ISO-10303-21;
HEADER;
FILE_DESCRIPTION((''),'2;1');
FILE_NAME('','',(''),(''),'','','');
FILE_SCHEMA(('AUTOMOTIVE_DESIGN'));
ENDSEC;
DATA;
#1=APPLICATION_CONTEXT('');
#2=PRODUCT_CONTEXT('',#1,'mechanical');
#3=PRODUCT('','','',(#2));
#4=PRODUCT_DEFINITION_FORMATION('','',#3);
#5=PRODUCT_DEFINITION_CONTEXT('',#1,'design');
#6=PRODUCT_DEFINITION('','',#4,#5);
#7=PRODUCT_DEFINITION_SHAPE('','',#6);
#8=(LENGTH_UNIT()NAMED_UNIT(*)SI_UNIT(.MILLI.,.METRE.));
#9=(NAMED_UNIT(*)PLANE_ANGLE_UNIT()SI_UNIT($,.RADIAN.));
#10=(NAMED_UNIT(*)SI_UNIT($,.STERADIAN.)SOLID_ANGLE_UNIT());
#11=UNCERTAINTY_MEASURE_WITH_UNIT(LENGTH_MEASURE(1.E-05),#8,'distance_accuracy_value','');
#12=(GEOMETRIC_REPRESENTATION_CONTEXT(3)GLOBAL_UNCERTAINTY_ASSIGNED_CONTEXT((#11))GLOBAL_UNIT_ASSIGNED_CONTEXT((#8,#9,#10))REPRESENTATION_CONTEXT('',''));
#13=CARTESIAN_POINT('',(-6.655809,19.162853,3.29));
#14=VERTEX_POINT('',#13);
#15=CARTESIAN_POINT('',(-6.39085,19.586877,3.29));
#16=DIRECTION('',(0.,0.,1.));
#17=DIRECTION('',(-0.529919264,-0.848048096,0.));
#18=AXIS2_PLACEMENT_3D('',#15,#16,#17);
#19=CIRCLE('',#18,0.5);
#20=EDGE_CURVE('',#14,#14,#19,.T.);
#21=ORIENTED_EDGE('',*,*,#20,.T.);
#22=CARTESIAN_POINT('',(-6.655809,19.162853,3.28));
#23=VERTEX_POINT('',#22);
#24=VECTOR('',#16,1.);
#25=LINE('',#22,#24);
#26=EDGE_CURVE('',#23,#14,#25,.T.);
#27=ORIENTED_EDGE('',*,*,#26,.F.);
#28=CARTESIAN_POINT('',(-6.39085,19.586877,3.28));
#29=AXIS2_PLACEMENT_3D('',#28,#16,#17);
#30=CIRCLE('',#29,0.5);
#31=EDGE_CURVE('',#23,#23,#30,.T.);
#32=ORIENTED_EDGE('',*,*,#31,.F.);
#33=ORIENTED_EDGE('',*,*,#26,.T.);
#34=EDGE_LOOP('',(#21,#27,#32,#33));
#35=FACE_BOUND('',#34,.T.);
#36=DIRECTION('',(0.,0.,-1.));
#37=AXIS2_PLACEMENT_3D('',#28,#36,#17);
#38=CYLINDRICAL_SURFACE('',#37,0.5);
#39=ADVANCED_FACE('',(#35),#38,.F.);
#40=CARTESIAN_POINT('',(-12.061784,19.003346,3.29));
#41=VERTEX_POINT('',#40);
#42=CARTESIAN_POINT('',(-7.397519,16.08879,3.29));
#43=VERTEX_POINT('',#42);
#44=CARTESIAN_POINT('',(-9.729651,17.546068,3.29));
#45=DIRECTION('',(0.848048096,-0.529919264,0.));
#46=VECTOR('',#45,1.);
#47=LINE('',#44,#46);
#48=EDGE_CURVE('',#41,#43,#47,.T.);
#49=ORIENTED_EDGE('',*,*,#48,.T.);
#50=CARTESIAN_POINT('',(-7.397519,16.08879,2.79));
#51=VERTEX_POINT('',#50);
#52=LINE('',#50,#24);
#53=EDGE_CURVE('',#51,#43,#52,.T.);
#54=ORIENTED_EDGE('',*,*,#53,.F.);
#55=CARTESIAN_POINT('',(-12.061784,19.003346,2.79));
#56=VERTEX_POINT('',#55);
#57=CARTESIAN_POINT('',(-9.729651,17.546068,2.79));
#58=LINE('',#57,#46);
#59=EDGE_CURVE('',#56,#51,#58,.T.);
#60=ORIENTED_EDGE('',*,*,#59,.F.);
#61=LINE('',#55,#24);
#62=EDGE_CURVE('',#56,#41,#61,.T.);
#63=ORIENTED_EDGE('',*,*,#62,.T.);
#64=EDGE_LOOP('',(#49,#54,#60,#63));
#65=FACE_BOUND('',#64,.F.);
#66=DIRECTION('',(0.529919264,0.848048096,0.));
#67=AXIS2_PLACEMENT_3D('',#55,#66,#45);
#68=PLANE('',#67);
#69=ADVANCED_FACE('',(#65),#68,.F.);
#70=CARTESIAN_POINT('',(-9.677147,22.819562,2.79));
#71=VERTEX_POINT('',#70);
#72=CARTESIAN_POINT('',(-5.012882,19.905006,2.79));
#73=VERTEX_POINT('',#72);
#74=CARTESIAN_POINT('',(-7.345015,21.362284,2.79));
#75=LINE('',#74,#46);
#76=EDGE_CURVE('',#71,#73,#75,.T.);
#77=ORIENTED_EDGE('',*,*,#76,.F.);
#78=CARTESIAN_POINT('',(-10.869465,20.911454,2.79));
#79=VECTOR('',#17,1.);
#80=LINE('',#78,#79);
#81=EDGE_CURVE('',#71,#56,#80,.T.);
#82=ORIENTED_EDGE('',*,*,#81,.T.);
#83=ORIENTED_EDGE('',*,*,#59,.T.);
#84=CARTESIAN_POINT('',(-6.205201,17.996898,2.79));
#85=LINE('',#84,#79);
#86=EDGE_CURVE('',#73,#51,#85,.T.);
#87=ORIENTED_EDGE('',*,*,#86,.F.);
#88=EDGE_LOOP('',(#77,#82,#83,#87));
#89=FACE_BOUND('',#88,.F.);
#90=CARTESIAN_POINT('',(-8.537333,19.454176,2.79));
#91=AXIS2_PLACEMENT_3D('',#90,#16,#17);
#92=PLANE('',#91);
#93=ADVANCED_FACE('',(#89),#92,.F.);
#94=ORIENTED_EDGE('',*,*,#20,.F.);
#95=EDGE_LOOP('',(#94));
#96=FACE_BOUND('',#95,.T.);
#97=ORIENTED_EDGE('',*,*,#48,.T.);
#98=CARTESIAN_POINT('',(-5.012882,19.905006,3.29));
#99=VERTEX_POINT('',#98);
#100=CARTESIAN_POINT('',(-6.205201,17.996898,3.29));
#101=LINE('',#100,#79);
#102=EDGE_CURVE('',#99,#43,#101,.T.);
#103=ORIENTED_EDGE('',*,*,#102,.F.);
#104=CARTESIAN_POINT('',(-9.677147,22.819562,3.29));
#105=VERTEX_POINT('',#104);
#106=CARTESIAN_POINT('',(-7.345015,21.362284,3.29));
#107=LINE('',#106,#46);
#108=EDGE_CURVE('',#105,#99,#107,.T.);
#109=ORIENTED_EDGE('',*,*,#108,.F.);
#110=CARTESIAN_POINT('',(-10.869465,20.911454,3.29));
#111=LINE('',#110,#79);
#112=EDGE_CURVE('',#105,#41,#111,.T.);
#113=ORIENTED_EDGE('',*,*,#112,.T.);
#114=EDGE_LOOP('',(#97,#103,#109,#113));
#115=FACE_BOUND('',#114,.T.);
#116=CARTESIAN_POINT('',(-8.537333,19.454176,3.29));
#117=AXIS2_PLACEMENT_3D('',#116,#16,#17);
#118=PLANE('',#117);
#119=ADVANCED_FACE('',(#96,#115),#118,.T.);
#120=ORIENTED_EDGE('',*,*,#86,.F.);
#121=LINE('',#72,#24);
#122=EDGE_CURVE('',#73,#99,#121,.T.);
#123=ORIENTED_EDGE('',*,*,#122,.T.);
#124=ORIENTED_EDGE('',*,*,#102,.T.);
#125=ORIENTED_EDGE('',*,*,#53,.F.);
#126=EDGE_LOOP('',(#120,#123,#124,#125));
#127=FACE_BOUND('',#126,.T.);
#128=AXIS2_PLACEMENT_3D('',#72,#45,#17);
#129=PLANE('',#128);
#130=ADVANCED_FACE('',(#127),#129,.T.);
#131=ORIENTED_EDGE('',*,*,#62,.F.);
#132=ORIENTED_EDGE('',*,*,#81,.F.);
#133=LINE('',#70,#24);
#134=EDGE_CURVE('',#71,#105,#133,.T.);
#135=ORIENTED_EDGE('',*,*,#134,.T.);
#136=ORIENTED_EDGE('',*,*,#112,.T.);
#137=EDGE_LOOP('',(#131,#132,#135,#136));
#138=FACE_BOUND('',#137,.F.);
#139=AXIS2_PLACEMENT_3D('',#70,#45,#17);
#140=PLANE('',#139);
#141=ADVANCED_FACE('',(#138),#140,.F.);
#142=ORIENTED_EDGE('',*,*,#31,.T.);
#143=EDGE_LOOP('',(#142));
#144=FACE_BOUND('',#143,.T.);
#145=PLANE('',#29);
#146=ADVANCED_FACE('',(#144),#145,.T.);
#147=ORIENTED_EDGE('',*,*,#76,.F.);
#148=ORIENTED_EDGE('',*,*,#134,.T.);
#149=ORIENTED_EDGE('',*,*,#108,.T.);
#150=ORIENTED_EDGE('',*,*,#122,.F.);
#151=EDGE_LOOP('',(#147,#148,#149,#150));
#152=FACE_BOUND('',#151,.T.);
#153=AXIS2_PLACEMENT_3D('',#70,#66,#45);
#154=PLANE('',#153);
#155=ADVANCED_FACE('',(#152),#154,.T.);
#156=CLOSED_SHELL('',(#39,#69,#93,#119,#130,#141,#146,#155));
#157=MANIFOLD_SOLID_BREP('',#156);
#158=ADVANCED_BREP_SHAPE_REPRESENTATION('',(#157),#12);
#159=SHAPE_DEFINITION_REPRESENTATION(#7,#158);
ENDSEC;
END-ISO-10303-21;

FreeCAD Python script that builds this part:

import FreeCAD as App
import Part
import Sketcher

V = App.Vector
Q = App.Units.Quantity

doc = App.newDocument("Part")
body = doc.addObject("PartDesign::Body", "Body")

sketch1 = body.newObject("Sketcher::SketchObject", "Sketch")
sketch1.AttachmentSupport = (doc.getObject("XY_Plane"), [""])
sketch1.MapMode = "FlatFace"
sketch1.AttachmentOffset = App.Placement(V(0, 0, 0.49), App.Rotation())
sketch1.addGeometry(Part.Circle(V(1, 4.5, 0), V(0, 0, 1), 0.5), False)
sketch1.addConstraint([
    Sketcher.Constraint("Diameter", 0, Q("1 mm")),
    Sketcher.Constraint("DistanceX", -1, 1, 0, 3, Q("1 mm")),
    Sketcher.Constraint("DistanceY", -1, 1, 0, 3, Q("4.5 mm")),
])
pad1 = body.newObject("PartDesign::Pad", "Pad")
pad1.Profile = sketch1
pad1.Length = 0.01
body2 = doc.addObject("PartDesign::Body", "Body001")

sketch2 = body2.newObject("Sketcher::SketchObject", "Sketch001")
sketch2.AttachmentSupport = (doc.getObject("XY_Plane001"), [""])
sketch2.MapMode = "FlatFace"
sketch2.addGeometry([
    Part.LineSegment(V(0, 5.5, 0), V(0, 0, 0)),
    Part.LineSegment(V(0, 0, 0), V(4.5, 0, 0)),
    Part.LineSegment(V(4.5, 0, 0), V(4.5, 5.5, 0)),
    Part.LineSegment(V(4.5, 5.5, 0), V(0, 5.5, 0)),
], False)
sketch2.addConstraint([
    Sketcher.Constraint("Coincident", 0, 2, 1, 1),
    Sketcher.Constraint("Coincident", 1, 2, 2, 1),
    Sketcher.Constraint("Coincident", 2, 2, 3, 1),
    Sketcher.Constraint("Coincident", 3, 2, 0, 1),
    Sketcher.Constraint("Vertical", 0),
    Sketcher.Constraint("Horizontal", 1),
    Sketcher.Constraint("Vertical", 2),
    Sketcher.Constraint("Horizontal", 3),
    Sketcher.Constraint("Coincident", 0, 2, -1, 1),
    Sketcher.Constraint("DistanceX", 1, 1, 1, 2, Q("4.5 mm")),
    Sketcher.Constraint("DistanceY", 0, 2, 0, 1, Q("5.5 mm")),
])
pad2 = body2.newObject("PartDesign::Pad", "Pad001")
pad2.Profile = sketch2
pad2.Length = 0.5
doc.recompute()

boolean = body2.newObject("PartDesign::Boolean", "Boolean")
boolean.Type = "Cut"
boolean.addObjects([body])
body3 = doc.addObject("PartDesign::Body", "Body002")
doc.recompute()

body2.Placement = App.Placement(V(-9.677147, 22.819562, 2.79), App.Rotation(V(0, 0, -1), 122))
boolean2 = body3.newObject("PartDesign::Boolean", "Boolean001")
boolean2.Type = "Fuse"
boolean2.addObjects([body2])

doc.recompute()
